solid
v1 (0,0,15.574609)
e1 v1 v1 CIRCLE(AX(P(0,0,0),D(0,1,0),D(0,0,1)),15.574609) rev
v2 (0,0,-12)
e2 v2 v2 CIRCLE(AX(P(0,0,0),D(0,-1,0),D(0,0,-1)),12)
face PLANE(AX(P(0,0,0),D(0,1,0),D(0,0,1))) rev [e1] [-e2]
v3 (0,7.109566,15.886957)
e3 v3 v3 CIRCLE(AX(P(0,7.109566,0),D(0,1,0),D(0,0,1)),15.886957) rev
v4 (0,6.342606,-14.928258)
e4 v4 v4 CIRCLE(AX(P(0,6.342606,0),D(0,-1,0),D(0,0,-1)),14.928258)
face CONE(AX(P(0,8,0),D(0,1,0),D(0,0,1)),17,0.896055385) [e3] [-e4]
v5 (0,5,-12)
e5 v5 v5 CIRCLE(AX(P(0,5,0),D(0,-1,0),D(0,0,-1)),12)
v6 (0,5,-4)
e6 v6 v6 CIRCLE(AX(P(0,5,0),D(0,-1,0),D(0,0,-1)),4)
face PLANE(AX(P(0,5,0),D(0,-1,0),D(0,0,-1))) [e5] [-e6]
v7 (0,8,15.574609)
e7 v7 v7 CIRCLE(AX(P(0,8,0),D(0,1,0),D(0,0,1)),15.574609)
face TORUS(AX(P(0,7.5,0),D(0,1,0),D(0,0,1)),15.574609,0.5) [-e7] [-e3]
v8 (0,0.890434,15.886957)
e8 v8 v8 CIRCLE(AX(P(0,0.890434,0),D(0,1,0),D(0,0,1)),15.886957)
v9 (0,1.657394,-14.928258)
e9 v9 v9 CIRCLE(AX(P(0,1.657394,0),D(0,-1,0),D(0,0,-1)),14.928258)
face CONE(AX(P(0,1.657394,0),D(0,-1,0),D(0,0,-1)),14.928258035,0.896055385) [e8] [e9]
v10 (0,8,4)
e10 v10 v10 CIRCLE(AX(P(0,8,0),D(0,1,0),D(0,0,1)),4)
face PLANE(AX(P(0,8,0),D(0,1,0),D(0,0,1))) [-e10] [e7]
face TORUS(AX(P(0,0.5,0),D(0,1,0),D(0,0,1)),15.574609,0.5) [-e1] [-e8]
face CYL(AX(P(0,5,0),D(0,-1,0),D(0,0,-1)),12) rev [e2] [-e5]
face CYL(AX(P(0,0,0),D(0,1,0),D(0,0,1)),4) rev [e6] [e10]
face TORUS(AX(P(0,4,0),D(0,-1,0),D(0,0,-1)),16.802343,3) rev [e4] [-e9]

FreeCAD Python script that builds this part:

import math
import FreeCAD as App
import Part
import Sketcher

V = App.Vector
Q = App.Units.Quantity


def edges_at(feature, points):
    """Names of the edges that pass closest to the given points."""
    edges = feature.Shape.Edges
    near = lambda p: min(range(len(edges)), key=lambda i: edges[i].distToShape(Part.Vertex(*p))[0])
    return sorted({f"Edge{near(p) + 1}" for p in points})

doc = App.newDocument("Part")
body = doc.addObject("PartDesign::Body", "Body")

# Sketch on XZ plane
sketch1 = body.newObject("Sketcher::SketchObject", "Sketch")
sketch1.AttachmentSupport = (doc.getObject("XZ_Plane"), [""])
sketch1.MapMode = "FlatFace"
sketch1.addGeometry(Part.Circle(V(0, 0, 0), V(0, 0, 1), 17), False)
sketch1.addConstraint([
    Sketcher.Constraint("Coincident", 0, 3, -1, 1),
    Sketcher.Constraint("Diameter", 0, Q("34 mm")),
])
pad1 = body.newObject("PartDesign::Pad", "Pad")
pad1.Profile = sketch1
pad1.Length = 8
pad1.Reversed = True

# Sketch on XZ plane
sketch2 = body.newObject("Sketcher::SketchObject", "Sketch001")
sketch2.AttachmentSupport = (doc.getObject("XZ_Plane"), [""])
sketch2.MapMode = "FlatFace"
sketch2.addGeometry(Part.Circle(V(0, 0, 0), V(0, 0, 1), 12), False)
sketch2.addConstraint([
    Sketcher.Constraint("Coincident", 0, 3, -1, 1),
    Sketcher.Constraint("Diameter", 0, Q("24 mm")),
])
pocket1 = body.newObject("PartDesign::Pocket", "Pocket")
pocket1.Profile = sketch2
pocket1.Length = 5

# Sketch on YZ plane
sketch3 = body.newObject("Sketcher::SketchObject", "Sketch002")
sketch3.AttachmentSupport = (doc.getObject("YZ_Plane"), [""])
sketch3.MapMode = "FlatFace"
sketch3.addGeometry([
    Part.LineSegment(V(8, -17, 0), V(6.3, -14.9, 0)),
    Part.ArcOfCircle(Part.Circle(V(4, -16.8, 0), V(0, 0, 1), 3), math.radians(39), math.radians(141)),
    Part.LineSegment(V(1.7, -14.9, 0), V(0, -17, 0)),
    Part.LineSegment(V(0, -17, 0), V(8, -17, 0)),
], False)
sketch3.addConstraint([
    Sketcher.Constraint("Tangent", 0, 2, 1, 1),
    Sketcher.Constraint("Tangent", 1, 2, 2, 1),
    Sketcher.Constraint("Coincident", 2, 2, 3, 1),
    Sketcher.Constraint("Coincident", 3, 2, 0, 1),
    Sketcher.Constraint("Horizontal", 3),
    Sketcher.Constraint("PointOnObject", 2, 2, -2),
    Sketcher.Constraint("Horizontal", 0, 2, 1, 2),
    Sketcher.Constraint("Radius", 1, Q("3 mm")),
    Sketcher.Constraint("DistanceX", 3, 1, 3, 2, Q("8 mm")),
    Sketcher.Constraint("DistanceY", 2, 2, -1, 1, Q("17 mm")),
    Sketcher.Constraint("DistanceY", 0, 2, -1, 1, Q("14.928258 mm")),
])
groove = body.newObject("PartDesign::Groove", "Groove")
groove.Profile = sketch3
groove.ReferenceAxis = (sketch3, ["H_Axis"])
groove.Angle = 360
doc.recompute()

fillet = body.newObject("PartDesign::Fillet", "Fillet")
fillet.Base = (groove, edges_at(groove, [(0, 8, 17), (0, 0, 17)]))
fillet.Radius = 0.5

# Sketch on XZ plane
sketch4 = body.newObject("Sketcher::SketchObject", "Sketch003")
sketch4.AttachmentSupport = (doc.getObject("XZ_Plane"), [""])
sketch4.MapMode = "FlatFace"
sketch4.AttachmentOffset = App.Placement(V(0, 0, -8), App.Rotation())
sketch4.addGeometry(Part.Circle(V(0, 0, 0), V(0, 0, 1), 4), False)
sketch4.addConstraint([
    Sketcher.Constraint("Coincident", 0, 3, -1, 1),
    Sketcher.Constraint("Diameter", 0, Q("8 mm")),
])
pocket2 = body.newObject("PartDesign::Pocket", "Pocket001")
pocket2.Profile = sketch4
pocket2.Type = "ThroughAll"
pocket2.Reversed = True

doc.recompute()
